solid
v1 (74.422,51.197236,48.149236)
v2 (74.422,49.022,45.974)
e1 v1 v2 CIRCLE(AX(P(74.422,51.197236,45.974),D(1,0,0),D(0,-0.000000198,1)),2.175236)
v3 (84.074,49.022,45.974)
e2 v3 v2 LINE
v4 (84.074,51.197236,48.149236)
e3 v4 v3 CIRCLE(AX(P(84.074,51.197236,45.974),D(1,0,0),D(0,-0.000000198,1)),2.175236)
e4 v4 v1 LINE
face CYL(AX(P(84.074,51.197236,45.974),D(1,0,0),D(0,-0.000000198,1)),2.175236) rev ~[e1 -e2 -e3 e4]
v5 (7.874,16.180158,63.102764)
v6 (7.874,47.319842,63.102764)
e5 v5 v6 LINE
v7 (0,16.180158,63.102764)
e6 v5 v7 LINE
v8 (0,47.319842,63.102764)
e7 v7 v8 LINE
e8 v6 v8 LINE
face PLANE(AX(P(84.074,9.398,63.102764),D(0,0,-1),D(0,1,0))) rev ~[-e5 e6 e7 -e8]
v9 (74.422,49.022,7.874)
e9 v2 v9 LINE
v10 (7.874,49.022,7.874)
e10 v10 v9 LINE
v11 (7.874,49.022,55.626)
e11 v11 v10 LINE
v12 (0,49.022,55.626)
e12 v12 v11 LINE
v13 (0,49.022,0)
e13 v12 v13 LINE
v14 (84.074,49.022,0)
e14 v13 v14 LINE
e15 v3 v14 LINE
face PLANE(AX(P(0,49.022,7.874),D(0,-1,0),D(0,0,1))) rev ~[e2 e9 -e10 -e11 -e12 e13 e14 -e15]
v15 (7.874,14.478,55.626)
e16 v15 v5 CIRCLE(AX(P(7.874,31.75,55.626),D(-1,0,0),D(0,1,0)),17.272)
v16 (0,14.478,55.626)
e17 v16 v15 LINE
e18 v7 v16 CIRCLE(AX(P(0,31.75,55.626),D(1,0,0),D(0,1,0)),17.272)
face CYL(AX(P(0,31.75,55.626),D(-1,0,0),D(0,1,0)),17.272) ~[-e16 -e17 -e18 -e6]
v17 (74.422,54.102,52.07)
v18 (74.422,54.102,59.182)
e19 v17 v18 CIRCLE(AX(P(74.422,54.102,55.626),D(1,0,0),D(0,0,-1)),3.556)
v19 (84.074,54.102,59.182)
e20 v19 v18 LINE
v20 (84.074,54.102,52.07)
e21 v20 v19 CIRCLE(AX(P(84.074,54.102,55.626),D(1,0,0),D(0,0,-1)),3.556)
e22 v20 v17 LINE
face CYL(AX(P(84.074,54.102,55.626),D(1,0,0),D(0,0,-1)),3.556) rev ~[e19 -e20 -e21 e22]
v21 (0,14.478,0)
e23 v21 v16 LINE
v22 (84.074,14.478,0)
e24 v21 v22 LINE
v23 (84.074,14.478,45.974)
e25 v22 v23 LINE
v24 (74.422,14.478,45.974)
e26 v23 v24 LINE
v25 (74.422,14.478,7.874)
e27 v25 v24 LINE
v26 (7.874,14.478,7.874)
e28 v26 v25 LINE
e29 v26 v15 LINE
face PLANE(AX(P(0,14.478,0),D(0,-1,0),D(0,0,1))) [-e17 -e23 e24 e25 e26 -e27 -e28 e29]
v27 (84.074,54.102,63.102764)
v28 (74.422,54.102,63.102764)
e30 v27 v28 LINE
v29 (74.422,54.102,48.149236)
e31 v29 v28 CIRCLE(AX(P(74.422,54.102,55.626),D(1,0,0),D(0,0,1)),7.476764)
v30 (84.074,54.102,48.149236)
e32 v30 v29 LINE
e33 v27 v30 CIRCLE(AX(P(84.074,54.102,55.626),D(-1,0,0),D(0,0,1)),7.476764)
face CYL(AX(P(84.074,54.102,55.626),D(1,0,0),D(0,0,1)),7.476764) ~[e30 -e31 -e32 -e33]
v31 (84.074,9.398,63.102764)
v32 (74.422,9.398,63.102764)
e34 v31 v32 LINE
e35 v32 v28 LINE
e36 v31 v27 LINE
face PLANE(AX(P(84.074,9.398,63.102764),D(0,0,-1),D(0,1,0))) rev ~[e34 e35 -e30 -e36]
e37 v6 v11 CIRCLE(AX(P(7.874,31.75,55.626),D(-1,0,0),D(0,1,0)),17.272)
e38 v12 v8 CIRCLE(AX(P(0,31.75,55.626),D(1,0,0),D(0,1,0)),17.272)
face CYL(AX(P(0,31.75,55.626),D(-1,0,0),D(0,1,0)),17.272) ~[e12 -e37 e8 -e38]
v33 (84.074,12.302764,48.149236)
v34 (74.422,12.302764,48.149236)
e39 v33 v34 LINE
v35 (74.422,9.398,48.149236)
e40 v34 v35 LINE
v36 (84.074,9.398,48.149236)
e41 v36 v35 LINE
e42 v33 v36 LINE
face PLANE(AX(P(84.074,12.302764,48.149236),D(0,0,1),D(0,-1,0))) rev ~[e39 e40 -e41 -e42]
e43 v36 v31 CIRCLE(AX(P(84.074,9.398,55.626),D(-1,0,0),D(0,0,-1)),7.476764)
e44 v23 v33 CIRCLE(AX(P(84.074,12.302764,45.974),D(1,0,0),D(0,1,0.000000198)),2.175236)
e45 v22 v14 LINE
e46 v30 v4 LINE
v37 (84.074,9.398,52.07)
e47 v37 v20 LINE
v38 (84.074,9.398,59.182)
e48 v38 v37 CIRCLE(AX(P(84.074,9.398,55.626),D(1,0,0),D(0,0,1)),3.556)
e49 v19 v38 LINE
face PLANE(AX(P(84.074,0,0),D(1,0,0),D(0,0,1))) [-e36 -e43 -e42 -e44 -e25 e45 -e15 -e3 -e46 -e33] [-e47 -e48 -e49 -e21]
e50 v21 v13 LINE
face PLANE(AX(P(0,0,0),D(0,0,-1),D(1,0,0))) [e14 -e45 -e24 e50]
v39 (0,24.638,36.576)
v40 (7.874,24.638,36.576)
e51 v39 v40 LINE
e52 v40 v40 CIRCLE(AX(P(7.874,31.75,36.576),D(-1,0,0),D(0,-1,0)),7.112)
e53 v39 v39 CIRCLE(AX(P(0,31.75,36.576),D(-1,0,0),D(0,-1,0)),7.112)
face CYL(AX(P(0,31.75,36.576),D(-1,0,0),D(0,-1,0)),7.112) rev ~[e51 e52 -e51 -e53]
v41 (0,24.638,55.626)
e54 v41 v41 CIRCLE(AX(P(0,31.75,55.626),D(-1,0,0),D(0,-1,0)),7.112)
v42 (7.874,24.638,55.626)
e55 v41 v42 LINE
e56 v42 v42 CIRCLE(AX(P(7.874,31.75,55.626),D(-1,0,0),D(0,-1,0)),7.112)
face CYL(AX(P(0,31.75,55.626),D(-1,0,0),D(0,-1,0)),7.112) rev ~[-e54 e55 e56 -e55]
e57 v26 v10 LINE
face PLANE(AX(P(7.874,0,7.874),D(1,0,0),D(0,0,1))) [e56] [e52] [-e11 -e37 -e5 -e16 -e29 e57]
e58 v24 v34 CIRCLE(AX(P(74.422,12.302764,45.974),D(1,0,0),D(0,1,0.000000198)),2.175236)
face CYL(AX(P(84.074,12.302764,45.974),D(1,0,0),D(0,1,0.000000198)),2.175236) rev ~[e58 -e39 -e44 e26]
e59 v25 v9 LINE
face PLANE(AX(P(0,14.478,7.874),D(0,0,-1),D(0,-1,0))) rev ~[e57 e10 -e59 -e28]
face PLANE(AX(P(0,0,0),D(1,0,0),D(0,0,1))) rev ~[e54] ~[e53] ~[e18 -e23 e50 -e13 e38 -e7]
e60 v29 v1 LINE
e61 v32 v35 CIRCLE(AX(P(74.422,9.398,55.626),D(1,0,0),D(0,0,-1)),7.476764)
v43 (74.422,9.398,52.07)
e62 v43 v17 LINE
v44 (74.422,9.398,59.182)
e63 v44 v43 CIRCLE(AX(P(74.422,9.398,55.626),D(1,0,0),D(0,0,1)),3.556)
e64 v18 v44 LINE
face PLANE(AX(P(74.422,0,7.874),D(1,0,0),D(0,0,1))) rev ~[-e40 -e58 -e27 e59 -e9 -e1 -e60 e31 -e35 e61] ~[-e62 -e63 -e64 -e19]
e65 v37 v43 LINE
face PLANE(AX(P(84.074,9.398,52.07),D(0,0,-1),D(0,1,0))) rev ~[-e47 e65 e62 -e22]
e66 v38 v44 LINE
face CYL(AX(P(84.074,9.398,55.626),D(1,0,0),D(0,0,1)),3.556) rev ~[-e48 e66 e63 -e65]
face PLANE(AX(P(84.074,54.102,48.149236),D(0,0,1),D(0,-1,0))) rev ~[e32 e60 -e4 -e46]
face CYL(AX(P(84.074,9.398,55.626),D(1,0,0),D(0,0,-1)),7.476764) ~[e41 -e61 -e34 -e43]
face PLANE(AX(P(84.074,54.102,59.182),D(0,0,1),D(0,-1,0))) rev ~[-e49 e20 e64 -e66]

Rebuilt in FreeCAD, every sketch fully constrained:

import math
import FreeCAD as App
import Part
import Sketcher

V = App.Vector
Q = App.Units.Quantity


def add_polygon(sketch, points):
    """Adds a closed chain of lines whose ends are joined by coincident constraints."""
    first, n = sketch.GeometryCount, len(points)
    for a, b in zip(points, points[1:] + points[:1]):
        sketch.addGeometry(Part.LineSegment(App.Vector(*a, 0), App.Vector(*b, 0)), False)
    for i in range(n):
        sketch.addConstraint(Sketcher.Constraint("Coincident", first + i, 2, first + (i + 1) % n, 1))

doc = App.newDocument("Part")
body = doc.addObject("PartDesign::Body", "Body")

# Sketch on XZ plane
sketch1 = body.newObject("Sketcher::SketchObject", "Sketch")
sketch1.AttachmentSupport = (doc.getObject("XZ_Plane"), [""])
sketch1.MapMode = "FlatFace"
add_polygon(sketch1, [(0, 76.2), (0, 0), (84.074, 0), (84.074, 76.2)])  # lines 0-3
sketch1.addConstraint(Sketcher.Constraint("Vertical", 0))
sketch1.addConstraint(Sketcher.Constraint("Horizontal", 1))
sketch1.addConstraint(Sketcher.Constraint("Vertical", 2))
sketch1.addConstraint(Sketcher.Constraint("Horizontal", 3))
sketch1.addConstraint(Sketcher.Constraint("Coincident", 0, 2, -1, 1))
sketch1.addConstraint(Sketcher.Constraint("DistanceY", 0, 2, 0, 1, Q("3 in")))
sketch1.addConstraint(Sketcher.Constraint("DistanceX", 1, 1, 1, 2, Q("3.31 in")))
pad1 = body.newObject("PartDesign::Pad", "Pad")
pad1.Profile = sketch1
pad1.Length = Q("2.5 in")
pad1.Reversed = True

# Sketch on XZ plane
sketch2 = body.newObject("Sketcher::SketchObject", "Sketch001")
sketch2.AttachmentSupport = (doc.getObject("XZ_Plane"), [""])
sketch2.MapMode = "FlatFace"
add_polygon(sketch2, [(7.874, 76.2), (7.874, 7.874), (74.422, 7.874), (74.422, 76.2)])  # lines 0-3
sketch2.addConstraint(Sketcher.Constraint("Vertical", 0))
sketch2.addConstraint(Sketcher.Constraint("Horizontal", 1))
sketch2.addConstraint(Sketcher.Constraint("Vertical", 2))
sketch2.addConstraint(Sketcher.Constraint("Horizontal", 3))
sketch2.addConstraint(Sketcher.Constraint("DistanceY", -1, 1, 2, 2, Q("3 in")))
sketch2.addConstraint(Sketcher.Constraint("DistanceX", 1, 1, 1, 2, Q("2.62 in")))
sketch2.addConstraint(Sketcher.Constraint("DistanceY", 0, 2, 0, 1, Q("2.69 in")))
sketch2.addConstraint(Sketcher.Constraint("DistanceX", -1, 1, 0, 2, Q("0.31 in")))
pocket1 = body.newObject("PartDesign::Pocket", "Pocket")
pocket1.Profile = sketch2
pocket1.Type = "ThroughAll"

# Sketch on YZ plane
sketch3 = body.newObject("Sketcher::SketchObject", "Sketch002")
sketch3.AttachmentSupport = (doc.getObject("YZ_Plane"), [""])
sketch3.MapMode = "FlatFace"
sketch3.addGeometry(Part.LineSegment(V(63.5, 7.874, 0), V(49.022, 7.874, 0)), False)
sketch3.addGeometry(Part.LineSegment(V(49.022, 7.874, 0), V(49.022, 55.626, 0)), False)
sketch3.addGeometry(Part.ArcOfCircle(Part.Circle(V(31.75, 55.626, 0), V(0, 0, 1), 17.272), math.radians(0), math.radians(180)), False)
sketch3.addGeometry(Part.LineSegment(V(14.478, 55.626, 0), V(14.478, 7.874, 0)), False)
sketch3.addGeometry(Part.LineSegment(V(14.478, 7.874, 0), V(0, 7.874, 0)), False)
sketch3.addGeometry(Part.LineSegment(V(0, 7.874, 0), V(0, 76.2, 0)), False)
sketch3.addGeometry(Part.LineSegment(V(0, 76.2, 0), V(63.5, 76.2, 0)), False)
sketch3.addGeometry(Part.LineSegment(V(63.5, 76.2, 0), V(63.5, 7.874, 0)), False)
sketch3.addConstraint(Sketcher.Constraint("Coincident", 0, 2, 1, 1))
sketch3.addConstraint(Sketcher.Constraint("Tangent", 1, 2, 2, 1))
sketch3.addConstraint(Sketcher.Constraint("Tangent", 2, 2, 3, 1))
sketch3.addConstraint(Sketcher.Constraint("Coincident", 3, 2, 4, 1))
sketch3.addConstraint(Sketcher.Constraint("Coincident", 4, 2, 5, 1))
sketch3.addConstraint(Sketcher.Constraint("Coincident", 5, 2, 6, 1))
sketch3.addConstraint(Sketcher.Constraint("Coincident", 6, 2, 7, 1))
sketch3.addConstraint(Sketcher.Constraint("Coincident", 7, 2, 0, 1))
sketch3.addConstraint(Sketcher.Constraint("Horizontal", 0))
sketch3.addConstraint(Sketcher.Constraint("Vertical", 1))
sketch3.addConstraint(Sketcher.Constraint("Vertical", 3))
sketch3.addConstraint(Sketcher.Constraint("Horizontal", 4))
sketch3.addConstraint(Sketcher.Constraint("Vertical", 5))
sketch3.addConstraint(Sketcher.Constraint("Horizontal", 6))
sketch3.addConstraint(Sketcher.Constraint("Vertical", 7))
sketch3.addConstraint(Sketcher.Constraint("PointOnObject", 4, 2, -2))
sketch3.addConstraint(Sketcher.Constraint("Horizontal", 0, 2, 3, 2))
sketch3.addConstraint(Sketcher.Constraint("Equal", 0, 4))
sketch3.addConstraint(Sketcher.Constraint("Radius", 2, Q("0.68 in")))
sketch3.addConstraint(Sketcher.Constraint("DistanceX", 6, 1, 6, 2, Q("2.5 in")))
sketch3.addConstraint(Sketcher.Constraint("DistanceY", -1, 1, 5, 2, Q("3 in")))
sketch3.addConstraint(Sketcher.Constraint("DistanceY", 1, 1, 1, 2, Q("1.88 in")))
sketch3.addConstraint(Sketcher.Constraint("DistanceY", 5, 1, 5, 2, Q("2.69 in")))
pocket2 = body.newObject("PartDesign::Pocket", "Pocket001")
pocket2.Profile = sketch3
pocket2.Length = Q("1 in")
pocket2.Reversed = True

# Sketch on YZ plane
sketch4 = body.newObject("Sketcher::SketchObject", "Sketch003")
sketch4.AttachmentSupport = (doc.getObject("YZ_Plane"), [""])
sketch4.MapMode = "FlatFace"
add_polygon(sketch4, [(63.5, 7.874), (63.5, 0), (49.022, 0), (49.022, 7.874)])  # lines 0-3
add_polygon(sketch4, [(14.478, 7.874), (14.478, 0), (0, 0), (0, 7.874)])  # lines 4-7
sketch4.addConstraint(Sketcher.Constraint("Vertical", 0))
sketch4.addConstraint(Sketcher.Constraint("Horizontal", 1))
sketch4.addConstraint(Sketcher.Constraint("Vertical", 2))
sketch4.addConstraint(Sketcher.Constraint("Horizontal", 3))
sketch4.addConstraint(Sketcher.Constraint("Vertical", 4))
sketch4.addConstraint(Sketcher.Constraint("Horizontal", 5))
sketch4.addConstraint(Sketcher.Constraint("Vertical", 6))
sketch4.addConstraint(Sketcher.Constraint("Horizontal", 7))
sketch4.addConstraint(Sketcher.Constraint("Coincident", 5, 2, -1, 1))
sketch4.addConstraint(Sketcher.Constraint("PointOnObject", 0, 2, -1))
sketch4.addConstraint(Sketcher.Constraint("Horizontal", 3, 2, 6, 2))
sketch4.addConstraint(Sketcher.Constraint("Equal", 3, 5))
sketch4.addConstraint(Sketcher.Constraint("DistanceX", 1, 2, 1, 1, Q("0.57 in")))
sketch4.addConstraint(Sketcher.Constraint("DistanceY", 0, 2, 0, 1, Q("0.31 in")))
sketch4.addConstraint(Sketcher.Constraint("DistanceX", -1, 1, 0, 2, Q("2.5 in")))
pocket3 = body.newObject("PartDesign::Pocket", "Pocket002")
pocket3.Profile = sketch4
pocket3.Type = "ThroughAll"
pocket3.Reversed = True

# Sketch on YZ plane
sketch5 = body.newObject("Sketcher::SketchObject", "Sketch004")
sketch5.AttachmentSupport = (doc.getObject("YZ_Plane"), [""])
sketch5.MapMode = "FlatFace"
sketch5.addGeometry(Part.Circle(V(31.75, 36.576, 0), V(0, 0, 1), 7.112), False)
sketch5.addGeometry(Part.Circle(V(31.75, 55.626, 0), V(0, 0, 1), 7.112), False)
sketch5.addConstraint(Sketcher.Constraint("Equal", 0, 1))
sketch5.addConstraint(Sketcher.Constraint("Vertical", 0, 3, 1, 3))
sketch5.addConstraint(Sketcher.Constraint("Diameter", 0, Q("0.56 in")))
sketch5.addConstraint(Sketcher.Constraint("DistanceX", -1, 1, 0, 3, Q("1.25 in")))
sketch5.addConstraint(Sketcher.Constraint("DistanceY", -1, 1, 0, 3, Q("1.44 in")))
sketch5.addConstraint(Sketcher.Constraint("DistanceY", -1, 1, 1, 3, Q("2.19 in")))
pocket4 = body.newObject("PartDesign::Pocket", "Pocket003")
pocket4.Profile = sketch5
pocket4.Length = Q("1 in")
pocket4.Reversed = True

# Sketch on YZ plane
sketch6 = body.newObject("Sketcher::SketchObject", "Sketch005")
sketch6.AttachmentSupport = (doc.getObject("YZ_Plane"), [""])
sketch6.MapMode = "FlatFace"
sketch6.AttachmentOffset = App.Placement(V(0, 0, 3.31 * 25.4), App.Rotation())
sketch6.addGeometry(Part.LineSegment(V(0, 7.874, 0), V(14.478, 7.874, 0)), False)
sketch6.addGeometry(Part.LineSegment(V(14.478, 7.874, 0), V(14.478, 45.974, 0)), False)
sketch6.addGeometry(Part.ArcOfCircle(Part.Circle(V(12.302764, 45.974, 0), V(0, 0, 1), 2.175236), math.radians(0.000011), math.radians(89.999989)), False)
sketch6.addGeometry(Part.LineSegment(V(12.302764, 48.149236, 0), V(9.398, 48.149236, 0)), False)
sketch6.addGeometry(Part.ArcOfCircle(Part.Circle(V(9.398, 55.626, 0), V(0, 0, 1), 7.476764), math.radians(90), math.radians(270)), False)
sketch6.addGeometry(Part.LineSegment(V(9.398, 63.102764, 0), V(54.102, 63.102764, 0)), False)
sketch6.addGeometry(Part.ArcOfCircle(Part.Circle(V(54.102, 55.626, 0), V(0, 0, 1), 7.476764), math.radians(-90), math.radians(90)), False)
sketch6.addGeometry(Part.LineSegment(V(54.102, 48.149236, 0), V(51.197236, 48.149236, 0)), False)
sketch6.addGeometry(Part.ArcOfCircle(Part.Circle(V(51.197236, 45.974, 0), V(0, 0, 1), 2.175236), math.radians(90.000011), math.radians(179.999989)), False)
sketch6.addGeometry(Part.LineSegment(V(49.022, 45.974, 0), V(49.022, 7.874, 0)), False)
sketch6.addGeometry(Part.LineSegment(V(49.022, 7.874, 0), V(63.5, 7.874, 0)), False)
sketch6.addGeometry(Part.LineSegment(V(63.5, 7.874, 0), V(63.5, 76.2, 0)), False)
sketch6.addGeometry(Part.LineSegment(V(63.5, 76.2, 0), V(0, 76.2, 0)), False)
sketch6.addGeometry(Part.LineSegment(V(0, 76.2, 0), V(0, 7.874, 0)), False)
sketch6.addConstraint(Sketcher.Constraint("Coincident", 0, 2, 1, 1))
sketch6.addConstraint(Sketcher.Constraint("Tangent", 1, 2, 2, 1))
sketch6.addConstraint(Sketcher.Constraint("Tangent", 2, 2, 3, 1))
sketch6.addConstraint(Sketcher.Constraint("Tangent", 3, 2, 4, 2))
sketch6.addConstraint(Sketcher.Constraint("Tangent", 4, 1, 5, 1))
sketch6.addConstraint(Sketcher.Constraint("Tangent", 5, 2, 6, 2))
sketch6.addConstraint(Sketcher.Constraint("Tangent", 6, 1, 7, 1))
sketch6.addConstraint(Sketcher.Constraint("Tangent", 7, 2, 8, 1))
sketch6.addConstraint(Sketcher.Constraint("Tangent", 8, 2, 9, 1))
sketch6.addConstraint(Sketcher.Constraint("Coincident", 9, 2, 10, 1))
sketch6.addConstraint(Sketcher.Constraint("Coincident", 10, 2, 11, 1))
sketch6.addConstraint(Sketcher.Constraint("Coincident", 11, 2, 12, 1))
sketch6.addConstraint(Sketcher.Constraint("Coincident", 12, 2, 13, 1))
sketch6.addConstraint(Sketcher.Constraint("Coincident", 13, 2, 0, 1))
sketch6.addConstraint(Sketcher.Constraint("Horizontal", 0))
sketch6.addConstraint(Sketcher.Constraint("Vertical", 1))
sketch6.addConstraint(Sketcher.Constraint("Horizontal", 3))
sketch6.addConstraint(Sketcher.Constraint("Horizontal", 5))
sketch6.addConstraint(Sketcher.Constraint("Horizontal", 7))
sketch6.addConstraint(Sketcher.Constraint("Vertical", 9))
sketch6.addConstraint(Sketcher.Constraint("Horizontal", 10))
sketch6.addConstraint(Sketcher.Constraint("Vertical", 11))
sketch6.addConstraint(Sketcher.Constraint("Horizontal", 12))
sketch6.addConstraint(Sketcher.Constraint("Vertical", 13))
sketch6.addConstraint(Sketcher.Constraint("Equal", 4, 6))
sketch6.addConstraint(Sketcher.Constraint("Equal", 2, 8))
sketch6.addConstraint(Sketcher.Constraint("PointOnObject", 12, 2, -2))
sketch6.addConstraint(Sketcher.Constraint("Horizontal", 0, 2, 9, 2))
sketch6.addConstraint(Sketcher.Constraint("Equal", 3, 7))
sketch6.addConstraint(Sketcher.Constraint("Equal", 0, 10))
sketch6.addConstraint(Sketcher.Constraint("DistanceX", 12, 2, 12, 1, Q("2.5 in")))
sketch6.addConstraint(Sketcher.Constraint("DistanceY", 1, 1, 1, 2, Q("1.5 in")))
sketch6.addConstraint(Sketcher.Constraint("DistanceY", -1, 1, 11, 2, Q("3 in")))
sketch6.addConstraint(Sketcher.Constraint("DistanceX", 0, 1, 0, 2, Q("0.57 in")))
sketch6.addConstraint(Sketcher.Constraint("DistanceX", 5, 1, 5, 2, Q("1.76 in")))
sketch6.addConstraint(Sketcher.Constraint("DistanceY", 11, 1, 11, 2, Q("2.69 in")))
sketch6.addConstraint(Sketcher.Constraint("DistanceY", -1, 1, 4, 3, Q("2.19 in")))
sketch6.addConstraint(Sketcher.Constraint("Radius", 2, Q("2.175236 mm")))
pocket5 = body.newObject("PartDesign::Pocket", "Pocket004")
pocket5.Profile = sketch6
pocket5.Type = "ThroughAll"

# Sketch on YZ plane
sketch7 = body.newObject("Sketcher::SketchObject", "Sketch006")
sketch7.AttachmentSupport = (doc.getObject("YZ_Plane"), [""])
sketch7.MapMode = "FlatFace"
sketch7.AttachmentOffset = App.Placement(V(0, 0, 3.31 * 25.4), App.Rotation())
sketch7.addGeometry(Part.ArcOfCircle(Part.Circle(V(54.102, 55.626, 0), V(0, 0, 1), 3.556), math.radians(-90), math.radians(90)), False)
sketch7.addGeometry(Part.LineSegment(V(54.102, 59.182, 0), V(9.398, 59.182, 0)), False)
sketch7.addGeometry(Part.ArcOfCircle(Part.Circle(V(9.398, 55.626, 0), V(0, 0, 1), 3.556), math.radians(90), math.radians(270)), False)
sketch7.addGeometry(Part.LineSegment(V(9.398, 52.07, 0), V(54.102, 52.07, 0)), False)
sketch7.addConstraint(Sketcher.Constraint("Tangent", 0, 2, 1, 1))
sketch7.addConstraint(Sketcher.Constraint("Tangent", 1, 2, 2, 1))
sketch7.addConstraint(Sketcher.Constraint("Tangent", 2, 2, 3, 1))
sketch7.addConstraint(Sketcher.Constraint("Tangent", 3, 2, 0, 1))
sketch7.addConstraint(Sketcher.Constraint("Horizontal", 1))
sketch7.addConstraint(Sketcher.Constraint("Horizontal", 3))
sketch7.addConstraint(Sketcher.Constraint("Radius", 0, Q("0.14 in")))
sketch7.addConstraint(Sketcher.Constraint("DistanceX", 1, 2, 1, 1, Q("1.76 in")))
sketch7.addConstraint(Sketcher.Constraint("DistanceX", -1, 1, 0, 3, Q("2.13 in")))
sketch7.addConstraint(Sketcher.Constraint("DistanceY", -1, 1, 0, 3, Q("2.19 in")))
pocket6 = body.newObject("PartDesign::Pocket", "Pocket005")
pocket6.Profile = sketch7
pocket6.Length = Q("1 in")

doc.recompute()
